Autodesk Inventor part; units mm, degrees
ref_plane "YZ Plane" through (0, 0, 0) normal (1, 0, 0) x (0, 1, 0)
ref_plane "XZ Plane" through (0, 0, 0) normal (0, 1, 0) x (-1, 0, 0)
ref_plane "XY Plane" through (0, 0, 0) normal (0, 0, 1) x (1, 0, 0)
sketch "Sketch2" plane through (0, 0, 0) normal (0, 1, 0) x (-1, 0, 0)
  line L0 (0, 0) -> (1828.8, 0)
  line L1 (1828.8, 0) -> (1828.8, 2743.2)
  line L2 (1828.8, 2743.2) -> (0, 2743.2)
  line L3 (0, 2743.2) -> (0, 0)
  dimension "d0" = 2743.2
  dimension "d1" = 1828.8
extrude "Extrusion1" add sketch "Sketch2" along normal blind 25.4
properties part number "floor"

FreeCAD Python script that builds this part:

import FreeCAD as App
import Part
import Sketcher
from FreeCAD import Vector
Q = App.Units.Quantity

doc = App.newDocument("Part")
body = doc.addObject("PartDesign::Body", "Body")

# Sketch on XZ plane
sketch1 = doc.addObject("Sketcher::SketchObject", "Sketch")
body.addObject(sketch1)
sketch1.AttachmentSupport = (doc.XZ_Plane, [""])
sketch1.MapMode = "FlatFace"
sketch1.addGeometry([
    Part.LineSegment(Vector(0, 2743, 0), Vector(0, 0, 0)),
    Part.LineSegment(Vector(0, 0, 0), Vector(-1829, 0, 0)),
    Part.LineSegment(Vector(-1829, 0, 0), Vector(-1829, 2743, 0)),
    Part.LineSegment(Vector(-1829, 2743, 0), Vector(0, 2743, 0)),
], False)
sketch1.addConstraint([
    Sketcher.Constraint("Coincident", 0, 2, 1, 1),
    Sketcher.Constraint("Coincident", 1, 2, 2, 1),
    Sketcher.Constraint("Coincident", 2, 2, 3, 1),
    Sketcher.Constraint("Coincident", 3, 2, 0, 1),
    Sketcher.Constraint("Vertical", 0),
    Sketcher.Constraint("Horizontal", 1),
    Sketcher.Constraint("Vertical", 2),
    Sketcher.Constraint("Horizontal", 3),
    Sketcher.Constraint("Coincident", 0, 2, -1, 1),
    Sketcher.Constraint("DistanceX", 1, 2, 1, 1, Q("72 in")),
    Sketcher.Constraint("DistanceY", 0, 2, 0, 1, Q("108 in")),
])
pad1 = doc.addObject("PartDesign::Pad", "Pad")
body.addObject(pad1)
pad1.Profile = sketch1
pad1.Length = Q("1 in")
pad1.Reversed = True

doc.recompute()
